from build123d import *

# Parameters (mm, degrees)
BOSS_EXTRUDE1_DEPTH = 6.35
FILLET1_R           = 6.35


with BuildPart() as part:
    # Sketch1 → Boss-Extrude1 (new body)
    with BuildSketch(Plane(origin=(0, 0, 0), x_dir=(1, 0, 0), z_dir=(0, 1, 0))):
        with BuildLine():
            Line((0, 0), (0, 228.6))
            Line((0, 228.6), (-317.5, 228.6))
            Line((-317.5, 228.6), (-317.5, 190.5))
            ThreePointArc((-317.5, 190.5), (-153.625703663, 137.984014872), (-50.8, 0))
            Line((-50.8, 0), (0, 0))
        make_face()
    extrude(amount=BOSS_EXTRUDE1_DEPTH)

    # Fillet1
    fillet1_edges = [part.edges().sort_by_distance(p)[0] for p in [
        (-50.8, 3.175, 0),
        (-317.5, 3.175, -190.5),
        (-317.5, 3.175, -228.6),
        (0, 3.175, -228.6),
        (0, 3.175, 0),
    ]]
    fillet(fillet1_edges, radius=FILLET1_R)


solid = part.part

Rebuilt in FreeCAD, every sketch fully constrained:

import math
import FreeCAD as App
import Part
import Sketcher

V = App.Vector
Q = App.Units.Quantity


def edges_at(feature, points):
    """Names of the edges that pass closest to the given points."""
    edges = feature.Shape.Edges
    near = lambda p: min(range(len(edges)), key=lambda i: edges[i].distToShape(Part.Vertex(*p))[0])
    return sorted({f"Edge{near(p) + 1}" for p in points})

doc = App.newDocument("Part")
body = doc.addObject("PartDesign::Body", "Body")

# Sketch on XZ plane
sketch1 = body.newObject("Sketcher::SketchObject", "Sketch")
sketch1.AttachmentSupport = (doc.getObject("XZ_Plane"), [""])
sketch1.MapMode = "FlatFace"
sketch1.addGeometry([
    Part.LineSegment(V(0, 0, 0), V(0, -228.6, 0)),  # 0
    Part.LineSegment(V(0, -228.6, 0), V(-317.5, -228.6, 0)),  # 1
    Part.LineSegment(V(-317.5, -228.6, 0), V(-317.5, -190.5, 0)),  # 2
    Part.ArcOfCircle(Part.Circle(V(-317.5, 91.44, 0), V(0, 0, 1), 281.94), math.radians(-90), math.radians(-18.924644)),  # 3
    Part.LineSegment(V(-50.8, 0, 0), V(0, 0, 0)),  # 4
], False)
sketch1.addConstraint([
    Sketcher.Constraint("Coincident", 0, 2, 1, 1),
    Sketcher.Constraint("Coincident", 1, 2, 2, 1),
    Sketcher.Constraint("Coincident", 2, 2, 3, 1),
    Sketcher.Constraint("Coincident", 3, 2, 4, 1),
    Sketcher.Constraint("Coincident", 4, 2, 0, 1),
    Sketcher.Constraint("Vertical", 0),
    Sketcher.Constraint("Horizontal", 1),
    Sketcher.Constraint("Vertical", 2),
    Sketcher.Constraint("Horizontal", 4),
    Sketcher.Constraint("Coincident", 4, 2, -1, 1),
    Sketcher.Constraint("Vertical", 3, 3, 1, 2),
    Sketcher.Constraint("Radius", 3, Q("11.1 in")),
    Sketcher.Constraint("DistanceX", 4, 1, 4, 2, Q("2 in")),
    Sketcher.Constraint("DistanceY", 0, 2, 0, 1, Q("9 in")),
    Sketcher.Constraint("DistanceX", 1, 2, 1, 1, Q("12.5 in")),
])
pad1 = body.newObject("PartDesign::Pad", "Pad")
pad1.Profile = sketch1
pad1.Length = Q("0.25 in")
pad1.Reversed = True
doc.recompute()

fillet = body.newObject("PartDesign::Fillet", "Fillet")
fillet.Base = (pad1, edges_at(pad1, [
    (-50.8, 3.175, 0),
    (-317.5, 3.175, -190.5),
    (-317.5, 3.175, -228.6),
    (0, 3.175, -228.6),
    (0, 3.175, 0),
]))
fillet.Radius = Q("0.25 in")

doc.recompute()
